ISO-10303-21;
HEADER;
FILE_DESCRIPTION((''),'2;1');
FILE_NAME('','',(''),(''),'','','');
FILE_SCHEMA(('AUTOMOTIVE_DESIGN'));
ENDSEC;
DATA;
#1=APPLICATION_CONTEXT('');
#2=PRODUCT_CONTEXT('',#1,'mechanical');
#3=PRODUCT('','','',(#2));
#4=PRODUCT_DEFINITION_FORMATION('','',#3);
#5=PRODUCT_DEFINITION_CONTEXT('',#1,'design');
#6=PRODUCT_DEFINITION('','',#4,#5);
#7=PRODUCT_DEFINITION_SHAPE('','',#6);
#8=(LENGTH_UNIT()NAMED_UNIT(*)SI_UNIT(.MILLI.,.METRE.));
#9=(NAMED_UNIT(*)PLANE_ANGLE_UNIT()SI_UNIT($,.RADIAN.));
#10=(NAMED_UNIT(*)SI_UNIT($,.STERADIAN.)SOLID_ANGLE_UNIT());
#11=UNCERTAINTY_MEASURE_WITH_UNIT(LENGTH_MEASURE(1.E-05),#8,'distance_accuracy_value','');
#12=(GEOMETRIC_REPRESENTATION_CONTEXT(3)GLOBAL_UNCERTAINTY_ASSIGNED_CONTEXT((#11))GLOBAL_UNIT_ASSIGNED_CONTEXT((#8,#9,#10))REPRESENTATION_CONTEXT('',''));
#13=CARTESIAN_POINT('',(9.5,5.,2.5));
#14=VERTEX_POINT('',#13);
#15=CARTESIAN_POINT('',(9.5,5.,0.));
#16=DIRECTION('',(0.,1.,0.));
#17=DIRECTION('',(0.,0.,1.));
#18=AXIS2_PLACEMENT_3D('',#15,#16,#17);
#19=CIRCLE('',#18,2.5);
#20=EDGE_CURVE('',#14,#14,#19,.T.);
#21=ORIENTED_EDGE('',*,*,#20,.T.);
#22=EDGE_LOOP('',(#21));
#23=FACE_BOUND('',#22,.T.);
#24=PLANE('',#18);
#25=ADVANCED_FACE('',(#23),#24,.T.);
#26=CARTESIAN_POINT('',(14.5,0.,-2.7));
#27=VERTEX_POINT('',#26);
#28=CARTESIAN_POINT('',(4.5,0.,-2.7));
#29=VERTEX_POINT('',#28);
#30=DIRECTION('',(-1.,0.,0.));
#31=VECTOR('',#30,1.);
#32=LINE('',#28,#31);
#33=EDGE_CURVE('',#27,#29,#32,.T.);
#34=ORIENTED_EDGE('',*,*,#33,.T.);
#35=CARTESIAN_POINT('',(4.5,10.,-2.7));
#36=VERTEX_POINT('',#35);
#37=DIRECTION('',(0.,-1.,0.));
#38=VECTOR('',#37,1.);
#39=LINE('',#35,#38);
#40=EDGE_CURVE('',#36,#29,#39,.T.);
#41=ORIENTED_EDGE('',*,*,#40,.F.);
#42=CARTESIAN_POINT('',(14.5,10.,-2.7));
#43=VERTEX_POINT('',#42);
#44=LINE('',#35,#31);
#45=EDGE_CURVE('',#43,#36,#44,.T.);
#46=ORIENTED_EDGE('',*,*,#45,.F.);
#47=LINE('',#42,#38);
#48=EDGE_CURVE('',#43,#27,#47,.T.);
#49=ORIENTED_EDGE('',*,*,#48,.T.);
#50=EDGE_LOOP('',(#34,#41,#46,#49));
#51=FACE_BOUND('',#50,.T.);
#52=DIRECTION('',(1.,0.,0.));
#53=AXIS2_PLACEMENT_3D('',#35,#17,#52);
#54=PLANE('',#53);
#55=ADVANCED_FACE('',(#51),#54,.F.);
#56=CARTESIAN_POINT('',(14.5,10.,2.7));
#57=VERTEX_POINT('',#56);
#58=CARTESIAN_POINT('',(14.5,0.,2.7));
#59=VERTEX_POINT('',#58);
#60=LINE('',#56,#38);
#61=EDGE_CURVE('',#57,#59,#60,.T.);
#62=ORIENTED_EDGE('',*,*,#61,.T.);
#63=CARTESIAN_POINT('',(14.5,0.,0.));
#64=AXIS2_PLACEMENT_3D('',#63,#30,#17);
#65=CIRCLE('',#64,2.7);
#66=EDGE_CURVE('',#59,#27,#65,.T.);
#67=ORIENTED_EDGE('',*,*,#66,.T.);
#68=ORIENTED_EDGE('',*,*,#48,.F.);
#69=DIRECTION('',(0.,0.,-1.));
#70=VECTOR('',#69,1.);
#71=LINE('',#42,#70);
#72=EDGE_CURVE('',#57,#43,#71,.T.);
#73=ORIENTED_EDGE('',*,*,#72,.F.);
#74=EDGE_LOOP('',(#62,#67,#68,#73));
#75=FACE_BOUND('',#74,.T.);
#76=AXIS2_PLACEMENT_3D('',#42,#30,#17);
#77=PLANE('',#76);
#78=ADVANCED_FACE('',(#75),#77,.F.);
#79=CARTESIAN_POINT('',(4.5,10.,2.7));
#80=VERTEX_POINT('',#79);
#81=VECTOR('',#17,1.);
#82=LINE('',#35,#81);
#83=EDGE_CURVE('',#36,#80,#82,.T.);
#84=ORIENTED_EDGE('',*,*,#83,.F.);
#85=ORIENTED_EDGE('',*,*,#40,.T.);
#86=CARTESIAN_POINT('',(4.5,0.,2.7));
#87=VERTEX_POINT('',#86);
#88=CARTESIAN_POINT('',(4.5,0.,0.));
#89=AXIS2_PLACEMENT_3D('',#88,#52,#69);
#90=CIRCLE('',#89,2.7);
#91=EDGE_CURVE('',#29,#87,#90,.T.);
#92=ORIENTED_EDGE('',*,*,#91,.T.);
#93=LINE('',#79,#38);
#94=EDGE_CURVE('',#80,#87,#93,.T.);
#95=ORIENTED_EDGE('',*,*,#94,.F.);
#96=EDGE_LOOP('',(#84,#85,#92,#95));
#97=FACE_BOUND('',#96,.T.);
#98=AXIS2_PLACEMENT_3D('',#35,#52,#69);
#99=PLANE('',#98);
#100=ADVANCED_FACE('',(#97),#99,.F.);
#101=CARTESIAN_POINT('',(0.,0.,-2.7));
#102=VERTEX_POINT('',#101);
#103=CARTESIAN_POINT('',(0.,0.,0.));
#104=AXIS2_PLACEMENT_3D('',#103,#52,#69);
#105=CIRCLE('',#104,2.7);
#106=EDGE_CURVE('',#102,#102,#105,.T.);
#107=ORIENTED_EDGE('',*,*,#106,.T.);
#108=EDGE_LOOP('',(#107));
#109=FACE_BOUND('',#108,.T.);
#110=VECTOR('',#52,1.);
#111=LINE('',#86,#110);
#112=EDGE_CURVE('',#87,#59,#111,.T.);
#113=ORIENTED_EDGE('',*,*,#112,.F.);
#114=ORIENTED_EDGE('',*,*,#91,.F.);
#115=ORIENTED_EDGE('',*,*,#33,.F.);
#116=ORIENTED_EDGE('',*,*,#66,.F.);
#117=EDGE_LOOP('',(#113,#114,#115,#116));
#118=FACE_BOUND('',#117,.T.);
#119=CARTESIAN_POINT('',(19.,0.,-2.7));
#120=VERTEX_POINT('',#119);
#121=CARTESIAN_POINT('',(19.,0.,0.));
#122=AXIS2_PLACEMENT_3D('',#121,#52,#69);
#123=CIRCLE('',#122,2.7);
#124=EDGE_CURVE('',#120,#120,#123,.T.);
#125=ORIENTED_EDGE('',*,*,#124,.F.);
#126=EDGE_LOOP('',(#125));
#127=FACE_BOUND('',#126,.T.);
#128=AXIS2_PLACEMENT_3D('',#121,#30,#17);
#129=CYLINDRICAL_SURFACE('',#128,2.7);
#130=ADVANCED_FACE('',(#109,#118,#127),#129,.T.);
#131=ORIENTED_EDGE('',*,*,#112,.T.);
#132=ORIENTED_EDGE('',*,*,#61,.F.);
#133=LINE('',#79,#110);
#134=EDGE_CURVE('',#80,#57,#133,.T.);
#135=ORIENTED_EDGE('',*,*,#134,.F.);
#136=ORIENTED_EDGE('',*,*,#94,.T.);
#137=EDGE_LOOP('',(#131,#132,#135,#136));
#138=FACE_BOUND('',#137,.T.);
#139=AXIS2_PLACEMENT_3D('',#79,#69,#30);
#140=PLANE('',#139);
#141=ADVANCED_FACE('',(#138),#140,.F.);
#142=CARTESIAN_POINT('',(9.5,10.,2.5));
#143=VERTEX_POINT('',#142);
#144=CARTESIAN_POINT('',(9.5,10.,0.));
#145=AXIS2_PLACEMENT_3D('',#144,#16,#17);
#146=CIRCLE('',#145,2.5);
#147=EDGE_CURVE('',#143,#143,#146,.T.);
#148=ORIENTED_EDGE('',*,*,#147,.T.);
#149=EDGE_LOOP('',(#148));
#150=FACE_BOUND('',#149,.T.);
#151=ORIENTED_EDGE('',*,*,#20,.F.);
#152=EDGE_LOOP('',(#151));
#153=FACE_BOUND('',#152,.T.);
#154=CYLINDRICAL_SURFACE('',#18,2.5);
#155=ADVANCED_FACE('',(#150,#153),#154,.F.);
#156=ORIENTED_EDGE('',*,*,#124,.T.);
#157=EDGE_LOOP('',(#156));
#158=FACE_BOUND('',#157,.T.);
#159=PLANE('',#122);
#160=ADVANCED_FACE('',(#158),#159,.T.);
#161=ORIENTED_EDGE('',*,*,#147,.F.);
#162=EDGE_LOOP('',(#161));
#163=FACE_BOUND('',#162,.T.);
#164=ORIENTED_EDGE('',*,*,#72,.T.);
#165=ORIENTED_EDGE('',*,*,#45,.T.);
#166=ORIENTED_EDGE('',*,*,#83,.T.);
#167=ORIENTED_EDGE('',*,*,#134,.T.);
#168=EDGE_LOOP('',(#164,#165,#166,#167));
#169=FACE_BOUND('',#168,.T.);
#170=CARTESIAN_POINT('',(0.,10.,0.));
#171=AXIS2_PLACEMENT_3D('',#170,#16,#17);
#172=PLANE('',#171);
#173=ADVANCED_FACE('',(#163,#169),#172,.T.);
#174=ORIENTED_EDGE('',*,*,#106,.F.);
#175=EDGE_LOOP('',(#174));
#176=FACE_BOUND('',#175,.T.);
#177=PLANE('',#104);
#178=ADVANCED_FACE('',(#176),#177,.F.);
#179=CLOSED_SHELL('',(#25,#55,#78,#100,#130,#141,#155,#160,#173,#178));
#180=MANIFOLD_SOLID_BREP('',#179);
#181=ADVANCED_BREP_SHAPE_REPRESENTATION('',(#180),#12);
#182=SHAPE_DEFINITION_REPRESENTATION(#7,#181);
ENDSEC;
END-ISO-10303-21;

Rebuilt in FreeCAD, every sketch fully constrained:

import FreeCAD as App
import Part
import Sketcher

V = App.Vector
Q = App.Units.Quantity


def add_polygon(sketch, points):
    """Adds a closed chain of lines whose ends are joined by coincident constraints."""
    first, n = sketch.GeometryCount, len(points)
    for a, b in zip(points, points[1:] + points[:1]):
        sketch.addGeometry(Part.LineSegment(App.Vector(*a, 0), App.Vector(*b, 0)), False)
    for i in range(n):
        sketch.addConstraint(Sketcher.Constraint("Coincident", first + i, 2, first + (i + 1) % n, 1))

doc = App.newDocument("Part")
body = doc.addObject("PartDesign::Body", "Body")

sketch1 = body.newObject("Sketcher::SketchObject", "Sketch")
sketch1.AttachmentSupport = (doc.getObject("YZ_Plane"), [""])
sketch1.MapMode = "FlatFace"
sketch1.addGeometry(Part.Circle(V(0, 0, 0), V(0, 0, 1), 2.7), False)
sketch1.addConstraint(Sketcher.Constraint("Coincident", 0, 3, -1, 1))
sketch1.addConstraint(Sketcher.Constraint("Diameter", 0, Q("5.4 mm")))
pad1 = body.newObject("PartDesign::Pad", "Pad")
pad1.Profile = sketch1
pad1.Length = 19

sketch2 = body.newObject("Sketcher::SketchObject", "Sketch001")
sketch2.AttachmentSupport = (doc.getObject("XZ_Plane"), [""])
sketch2.MapMode = "FlatFace"
add_polygon(sketch2, [(4.5, -2.7), (4.5, 2.7), (14.5, 2.7), (14.5, -2.7)])
sketch2.addConstraint(Sketcher.Constraint("Vertical", 0))
sketch2.addConstraint(Sketcher.Constraint("Horizontal", 1))
sketch2.addConstraint(Sketcher.Constraint("Vertical", 2))
sketch2.addConstraint(Sketcher.Constraint("Horizontal", 3))
sketch2.addConstraint(Sketcher.Constraint("DistanceX", 1, 1, 1, 2, Q("10 mm")))
sketch2.addConstraint(Sketcher.Constraint("DistanceY", 0, 1, 0, 2, Q("5.4 mm")))
sketch2.addConstraint(Sketcher.Constraint("DistanceX", -1, 1, 0, 2, Q("4.5 mm")))
sketch2.addConstraint(Sketcher.Constraint("DistanceY", -1, 1, 0, 2, Q("2.7 mm")))
pad2 = body.newObject("PartDesign::Pad", "Pad001")
pad2.Profile = sketch2
pad2.Length = 10
pad2.Reversed = True

sketch3 = body.newObject("Sketcher::SketchObject", "Sketch002")
sketch3.AttachmentSupport = (doc.getObject("XZ_Plane"), [""])
sketch3.MapMode = "FlatFace"
sketch3.AttachmentOffset = App.Placement(V(0, 0, -10), App.Rotation())
sketch3.addGeometry(Part.Circle(V(9.5, 0, 0), V(0, 0, 1), 2.5), False)
sketch3.addConstraint(Sketcher.Constraint("PointOnObject", 0, 3, -1))
sketch3.addConstraint(Sketcher.Constraint("Diameter", 0, Q("5 mm")))
sketch3.addConstraint(Sketcher.Constraint("DistanceX", -1, 1, 0, 3, Q("9.5 mm")))
pocket1 = body.newObject("PartDesign::Pocket", "Pocket")
pocket1.Profile = sketch3
pocket1.Length = 5
pocket1.Reversed = True

doc.recompute()
